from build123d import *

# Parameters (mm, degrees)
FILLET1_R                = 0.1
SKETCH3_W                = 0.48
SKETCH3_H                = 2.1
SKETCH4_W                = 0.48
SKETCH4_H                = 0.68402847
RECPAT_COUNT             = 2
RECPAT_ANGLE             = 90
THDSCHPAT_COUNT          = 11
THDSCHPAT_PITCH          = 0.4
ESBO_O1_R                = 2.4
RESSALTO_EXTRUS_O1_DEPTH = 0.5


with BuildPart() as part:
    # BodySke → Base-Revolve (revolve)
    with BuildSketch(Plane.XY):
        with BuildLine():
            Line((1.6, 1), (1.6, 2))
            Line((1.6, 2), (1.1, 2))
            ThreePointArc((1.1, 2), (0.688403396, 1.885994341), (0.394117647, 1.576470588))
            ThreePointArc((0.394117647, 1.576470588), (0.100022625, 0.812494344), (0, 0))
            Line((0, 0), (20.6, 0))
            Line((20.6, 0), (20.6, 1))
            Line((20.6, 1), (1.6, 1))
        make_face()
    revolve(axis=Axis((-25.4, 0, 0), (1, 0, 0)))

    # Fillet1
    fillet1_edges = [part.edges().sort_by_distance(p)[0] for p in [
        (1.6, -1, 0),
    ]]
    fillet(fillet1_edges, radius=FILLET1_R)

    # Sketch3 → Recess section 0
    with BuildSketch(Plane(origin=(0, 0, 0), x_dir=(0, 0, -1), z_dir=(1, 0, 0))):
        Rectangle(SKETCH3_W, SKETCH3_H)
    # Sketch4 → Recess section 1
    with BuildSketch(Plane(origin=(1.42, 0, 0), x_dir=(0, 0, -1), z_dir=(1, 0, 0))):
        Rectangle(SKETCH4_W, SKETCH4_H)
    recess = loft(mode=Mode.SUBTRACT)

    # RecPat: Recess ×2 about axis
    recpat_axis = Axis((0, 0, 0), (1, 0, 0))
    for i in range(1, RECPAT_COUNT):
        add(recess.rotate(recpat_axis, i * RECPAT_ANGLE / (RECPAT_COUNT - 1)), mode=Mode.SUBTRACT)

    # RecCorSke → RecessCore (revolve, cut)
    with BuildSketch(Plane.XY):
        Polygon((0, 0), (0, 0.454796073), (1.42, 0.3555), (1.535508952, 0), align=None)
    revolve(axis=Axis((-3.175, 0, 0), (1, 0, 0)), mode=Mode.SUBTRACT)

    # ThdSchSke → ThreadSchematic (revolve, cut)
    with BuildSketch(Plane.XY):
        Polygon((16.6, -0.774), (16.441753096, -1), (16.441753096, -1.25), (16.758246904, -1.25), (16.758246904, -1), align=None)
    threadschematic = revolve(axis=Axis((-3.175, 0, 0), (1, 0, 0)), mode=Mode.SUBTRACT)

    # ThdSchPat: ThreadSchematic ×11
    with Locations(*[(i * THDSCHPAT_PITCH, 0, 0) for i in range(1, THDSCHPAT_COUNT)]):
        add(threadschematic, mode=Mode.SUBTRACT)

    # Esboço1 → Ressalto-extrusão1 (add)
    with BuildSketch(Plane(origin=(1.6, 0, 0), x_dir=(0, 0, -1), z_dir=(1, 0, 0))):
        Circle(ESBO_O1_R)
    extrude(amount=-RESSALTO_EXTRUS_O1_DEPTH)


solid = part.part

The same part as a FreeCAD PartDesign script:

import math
import FreeCAD as App
import Part
import Sketcher
Q = App.Units.Quantity


def edges_at(feature, points):
    """Names of the edges that pass closest to the given points."""
    edges = feature.Shape.Edges
    near = lambda p: min(range(len(edges)), key=lambda i: edges[i].distToShape(Part.Vertex(*p))[0])
    return sorted({f"Edge{near(p) + 1}" for p in points})


def add_polygon(sketch, points):
    """Adds a closed chain of lines whose ends are joined by coincident constraints."""
    first, n = sketch.GeometryCount, len(points)
    for a, b in zip(points, points[1:] + points[:1]):
        sketch.addGeometry(Part.LineSegment(App.Vector(*a, 0), App.Vector(*b, 0)), False)
    for i in range(n):
        sketch.addConstraint(Sketcher.Constraint("Coincident", first + i, 2, first + (i + 1) % n, 1))

doc = App.newDocument("Part")
body = doc.addObject("PartDesign::Body", "Body")

sketch1 = body.newObject("Sketcher::SketchObject", "Sketch")
sketch1.AttachmentSupport = (doc.getObject("XY_Plane"), [""])
sketch1.MapMode = "FlatFace"
sketch1.addGeometry(Part.LineSegment(App.Vector(1.6, 1, 0), App.Vector(1.6, 2, 0)), False)
sketch1.addGeometry(Part.LineSegment(App.Vector(1.6, 2, 0), App.Vector(1.1, 2, 0)), False)
sketch1.addGeometry(Part.ArcOfCircle(Part.Circle(App.Vector(1.1, 1.2, 0), App.Vector(0, 0, 1), 0.8), math.radians(90), math.radians(151.927513)), False)
sketch1.addGeometry(Part.ArcOfCircle(Part.Circle(App.Vector(3.35, 0, 0), App.Vector(0, 0, 1), 3.35), math.radians(151.927513), math.radians(180)), False)
sketch1.addGeometry(Part.LineSegment(App.Vector(0, 0, 0), App.Vector(20.6, 0, 0)), False)
sketch1.addGeometry(Part.LineSegment(App.Vector(20.6, 0, 0), App.Vector(20.6, 1, 0)), False)
sketch1.addGeometry(Part.LineSegment(App.Vector(20.6, 1, 0), App.Vector(1.6, 1, 0)), False)
sketch1.addConstraint(Sketcher.Constraint("Coincident", 0, 2, 1, 1))
sketch1.addConstraint(Sketcher.Constraint("Tangent", 1, 2, 2, 1))
sketch1.addConstraint(Sketcher.Constraint("Tangent", 2, 2, 3, 1))
sketch1.addConstraint(Sketcher.Constraint("Coincident", 3, 2, 4, 1))
sketch1.addConstraint(Sketcher.Constraint("Coincident", 4, 2, 5, 1))
sketch1.addConstraint(Sketcher.Constraint("Coincident", 5, 2, 6, 1))
sketch1.addConstraint(Sketcher.Constraint("Coincident", 6, 2, 0, 1))
sketch1.addConstraint(Sketcher.Constraint("Vertical", 0))
sketch1.addConstraint(Sketcher.Constraint("Horizontal", 1))
sketch1.addConstraint(Sketcher.Constraint("Horizontal", 4))
sketch1.addConstraint(Sketcher.Constraint("Vertical", 5))
sketch1.addConstraint(Sketcher.Constraint("Horizontal", 6))
sketch1.addConstraint(Sketcher.Constraint("Coincident", 3, 2, -1, 1))
sketch1.addConstraint(Sketcher.Constraint("PointOnObject", 3, 3, -1))
sketch1.addConstraint(Sketcher.Constraint("Equal", 0, 5))
sketch1.addConstraint(Sketcher.Constraint("Radius", 2, Q("0.8 mm")))
sketch1.addConstraint(Sketcher.Constraint("DistanceX", 6, 2, 6, 1, Q("19 mm")))
sketch1.addConstraint(Sketcher.Constraint("DistanceY", 0, 1, 0, 2, Q("1 mm")))
sketch1.addConstraint(Sketcher.Constraint("Radius", 3, Q("3.35 mm")))
sketch1.addConstraint(Sketcher.Constraint("DistanceX", 1, 2, 1, 1, Q("0.5 mm")))
revolution = body.newObject("PartDesign::Revolution", "Revolution")
revolution.Profile = sketch1
revolution.ReferenceAxis = (sketch1, ["H_Axis"])
revolution.Angle = 360
doc.recompute()

fillet = body.newObject("PartDesign::Fillet", "Fillet")
fillet.Base = (revolution, edges_at(revolution, [(1.6, -1, 0)]))
fillet.Radius = 0.1

sketch2 = body.newObject("Sketcher::SketchObject", "Sketch001")
sketch2.AttachmentSupport = (doc.getObject("YZ_Plane"), [""])
sketch2.MapMode = "FlatFace"
add_polygon(sketch2, [(1.05, 0.24), (-1.05, 0.24), (-1.05, -0.24), (1.05, -0.24)])
sketch2.addConstraint(Sketcher.Constraint("Horizontal", 0))
sketch2.addConstraint(Sketcher.Constraint("Vertical", 1))
sketch2.addConstraint(Sketcher.Constraint("Horizontal", 2))
sketch2.addConstraint(Sketcher.Constraint("Vertical", 3))
sketch2.addConstraint(Sketcher.Constraint("Symmetric", 0, 2, 2, 2, -1, 1))
sketch2.addConstraint(Sketcher.Constraint("DistanceX", 0, 2, 0, 1, Q("2.1 mm")))
sketch2.addConstraint(Sketcher.Constraint("DistanceY", 1, 2, 1, 1, Q("0.48 mm")))

sketch3 = body.newObject("Sketcher::SketchObject", "Sketch002")
sketch3.AttachmentSupport = (doc.getObject("YZ_Plane"), [""])
sketch3.MapMode = "FlatFace"
sketch3.AttachmentOffset = App.Placement(App.Vector(0, 0, 1.42), App.Rotation())
add_polygon(sketch3, [(0.342014, 0.24), (-0.342014, 0.24), (-0.342014, -0.24), (0.342014, -0.24)])
sketch3.addConstraint(Sketcher.Constraint("Horizontal", 0))
sketch3.addConstraint(Sketcher.Constraint("Vertical", 1))
sketch3.addConstraint(Sketcher.Constraint("Horizontal", 2))
sketch3.addConstraint(Sketcher.Constraint("Vertical", 3))
sketch3.addConstraint(Sketcher.Constraint("Symmetric", 0, 2, 2, 2, -1, 1))
sketch3.addConstraint(Sketcher.Constraint("DistanceY", 1, 2, 1, 1, Q("0.48 mm")))
sketch3.addConstraint(Sketcher.Constraint("DistanceX", 0, 2, 0, 1, Q("0.684028 mm")))

subtractiveloft = body.newObject("PartDesign::SubtractiveLoft", "SubtractiveLoft")
subtractiveloft.Profile = sketch2
subtractiveloft.Sections = [sketch3]
doc.recompute()

polarpattern = body.newObject("PartDesign::PolarPattern", "PolarPattern")
polarpattern.Originals = [subtractiveloft]
polarpattern.Axis = (doc.getObject("X_Axis"), [""])
polarpattern.Angle = 90
polarpattern.Occurrences = 2
body.Tip = polarpattern

sketch4 = body.newObject("Sketcher::SketchObject", "Sketch003")
sketch4.AttachmentSupport = (doc.getObject("XY_Plane"), [""])
sketch4.MapMode = "FlatFace"
add_polygon(sketch4, [(0, 0.454796), (0, 0), (1.535509, 0), (1.42, 0.3555)])
sketch4.addConstraint(Sketcher.Constraint("Vertical", 0))
sketch4.addConstraint(Sketcher.Constraint("Horizontal", 1))
sketch4.addConstraint(Sketcher.Constraint("Coincident", 0, 2, -1, 1))
sketch4.addConstraint(Sketcher.Constraint("Angle", 2, Q("108 deg")))
sketch4.addConstraint(Sketcher.Constraint("Angle", 3, Q("176 deg")))
sketch4.addConstraint(Sketcher.Constraint("DistanceX", -1, 1, 2, 2, Q("1.42 mm")))
sketch4.addConstraint(Sketcher.Constraint("DistanceX", 1, 1, 1, 2, Q("1.535509 mm")))
groove = body.newObject("PartDesign::Groove", "Groove")
groove.Profile = sketch4
groove.ReferenceAxis = (sketch4, ["H_Axis"])
groove.Angle = 360

sketch5 = body.newObject("Sketcher::SketchObject", "Sketch004")
sketch5.AttachmentSupport = (doc.getObject("XY_Plane"), [""])
sketch5.MapMode = "FlatFace"
add_polygon(sketch5, [(16.6, -0.774), (16.441753, -1), (16.441753, -1.25), (16.758247, -1.25), (16.758247, -1)])
sketch5.addConstraint(Sketcher.Constraint("Vertical", 1))
sketch5.addConstraint(Sketcher.Constraint("Horizontal", 2))
sketch5.addConstraint(Sketcher.Constraint("Vertical", 3))
sketch5.addConstraint(Sketcher.Constraint("Horizontal", 0, 2, 3, 2))
sketch5.addConstraint(Sketcher.Constraint("Equal", 0, 4))
sketch5.addConstraint(Sketcher.Constraint("Angle", 0, Q("-125 deg")))
sketch5.addConstraint(Sketcher.Constraint("DistanceY", 0, 2, -1, 1, Q("1 mm")))
sketch5.addConstraint(Sketcher.Constraint("DistanceY", 1, 2, 1, 1, Q("0.25 mm")))
sketch5.addConstraint(Sketcher.Constraint("DistanceX", -1, 1, 4, 2, Q("16.6 mm")))
sketch5.addConstraint(Sketcher.Constraint("DistanceY", 4, 2, -1, 1, Q("0.774 mm")))
groove2 = body.newObject("PartDesign::Groove", "Groove001")
groove2.Profile = sketch5
groove2.ReferenceAxis = (sketch5, ["H_Axis"])
groove2.Angle = 360
doc.recompute()

linearpattern = body.newObject("PartDesign::LinearPattern", "LinearPattern")
linearpattern.Originals = [groove2]
linearpattern.Direction = (doc.getObject("X_Axis"), [""])
linearpattern.Mode = "offset"
linearpattern.Offset = 0.4
linearpattern.Occurrences = 11
body.Tip = linearpattern

sketch6 = body.newObject("Sketcher::SketchObject", "Sketch005")
sketch6.AttachmentSupport = (doc.getObject("YZ_Plane"), [""])
sketch6.MapMode = "FlatFace"
sketch6.AttachmentOffset = App.Placement(App.Vector(0, 0, 1.6), App.Rotation())
sketch6.addGeometry(Part.Circle(App.Vector(0, 0, 0), App.Vector(0, 0, 1), 2.4), False)
sketch6.addConstraint(Sketcher.Constraint("Coincident", 0, 3, -1, 1))
sketch6.addConstraint(Sketcher.Constraint("Diameter", 0, Q("4.8 mm")))
pad1 = body.newObject("PartDesign::Pad", "Pad")
pad1.Profile = sketch6
pad1.Length = 0.5
pad1.Reversed = True

doc.recompute()
